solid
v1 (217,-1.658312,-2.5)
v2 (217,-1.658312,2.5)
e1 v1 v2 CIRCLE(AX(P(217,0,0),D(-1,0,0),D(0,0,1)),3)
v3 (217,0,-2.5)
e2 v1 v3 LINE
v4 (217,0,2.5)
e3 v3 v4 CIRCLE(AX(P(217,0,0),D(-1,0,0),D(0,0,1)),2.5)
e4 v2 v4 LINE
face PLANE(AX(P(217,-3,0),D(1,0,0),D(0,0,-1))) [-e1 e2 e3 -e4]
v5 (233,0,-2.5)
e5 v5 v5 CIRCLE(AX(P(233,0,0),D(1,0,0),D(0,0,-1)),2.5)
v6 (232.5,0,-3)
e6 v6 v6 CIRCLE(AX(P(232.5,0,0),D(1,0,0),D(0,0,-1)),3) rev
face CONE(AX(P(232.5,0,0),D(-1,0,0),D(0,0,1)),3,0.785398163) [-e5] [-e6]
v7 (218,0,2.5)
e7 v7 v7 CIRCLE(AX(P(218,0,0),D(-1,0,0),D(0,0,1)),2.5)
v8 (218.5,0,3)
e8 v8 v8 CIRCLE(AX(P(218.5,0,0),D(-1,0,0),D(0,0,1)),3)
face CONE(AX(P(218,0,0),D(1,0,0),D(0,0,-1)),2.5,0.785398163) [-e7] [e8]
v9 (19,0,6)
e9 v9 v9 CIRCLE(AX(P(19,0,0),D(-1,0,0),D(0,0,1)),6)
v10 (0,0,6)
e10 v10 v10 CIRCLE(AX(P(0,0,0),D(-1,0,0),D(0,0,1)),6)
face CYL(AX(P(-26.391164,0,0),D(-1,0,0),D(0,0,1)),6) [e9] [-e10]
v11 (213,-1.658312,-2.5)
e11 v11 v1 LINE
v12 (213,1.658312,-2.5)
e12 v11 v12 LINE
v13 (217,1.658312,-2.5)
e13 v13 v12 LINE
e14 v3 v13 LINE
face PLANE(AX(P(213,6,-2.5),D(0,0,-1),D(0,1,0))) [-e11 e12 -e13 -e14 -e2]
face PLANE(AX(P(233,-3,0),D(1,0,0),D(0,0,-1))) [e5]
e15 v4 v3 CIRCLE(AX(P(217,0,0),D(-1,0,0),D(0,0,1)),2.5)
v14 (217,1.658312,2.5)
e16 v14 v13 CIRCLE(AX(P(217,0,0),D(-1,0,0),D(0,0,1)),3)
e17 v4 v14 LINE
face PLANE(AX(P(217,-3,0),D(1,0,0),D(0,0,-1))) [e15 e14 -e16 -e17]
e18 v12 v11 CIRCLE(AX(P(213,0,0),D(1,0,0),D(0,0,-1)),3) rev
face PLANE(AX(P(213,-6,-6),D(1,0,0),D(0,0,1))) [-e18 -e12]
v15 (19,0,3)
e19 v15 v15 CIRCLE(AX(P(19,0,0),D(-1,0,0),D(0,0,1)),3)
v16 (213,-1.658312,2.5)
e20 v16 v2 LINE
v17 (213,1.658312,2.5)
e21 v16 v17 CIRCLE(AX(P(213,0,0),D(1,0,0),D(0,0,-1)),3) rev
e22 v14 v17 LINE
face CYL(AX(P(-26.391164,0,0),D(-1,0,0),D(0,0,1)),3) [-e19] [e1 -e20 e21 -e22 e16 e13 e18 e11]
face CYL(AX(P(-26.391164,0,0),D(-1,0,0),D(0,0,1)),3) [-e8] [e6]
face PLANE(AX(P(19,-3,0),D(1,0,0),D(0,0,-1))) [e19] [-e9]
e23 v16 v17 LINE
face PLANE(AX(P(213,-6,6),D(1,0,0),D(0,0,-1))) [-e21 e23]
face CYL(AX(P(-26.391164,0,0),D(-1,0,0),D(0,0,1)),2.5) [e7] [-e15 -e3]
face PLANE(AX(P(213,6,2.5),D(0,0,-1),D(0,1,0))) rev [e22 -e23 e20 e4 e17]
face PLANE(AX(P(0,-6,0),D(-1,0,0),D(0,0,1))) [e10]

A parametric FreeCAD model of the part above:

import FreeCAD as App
import Part
import Sketcher
from FreeCAD import Vector
Q = App.Units.Quantity


def edges_at(feature, points):
    """Names of the edges that pass closest to the given points."""
    edges = feature.Shape.Edges
    near = lambda p: min(range(len(edges)), key=lambda i: edges[i].distToShape(Part.Vertex(*p))[0])
    return sorted({f"Edge{near(p) + 1}" for p in points})


def add_polygon(sketch, points):
    """Adds a closed chain of lines whose ends are joined by coincident constraints."""
    first, n = sketch.GeometryCount, len(points)
    for a, b in zip(points, points[1:] + points[:1]):
        sketch.addGeometry(Part.LineSegment(App.Vector(*a, 0), App.Vector(*b, 0)), False)
    for i in range(n):
        sketch.addConstraint(Sketcher.Constraint("Coincident", first + i, 2, first + (i + 1) % n, 1))

doc = App.newDocument("Part")
body = doc.addObject("PartDesign::Body", "Body")

sketch1 = body.newObject("Sketcher::SketchObject", "Sketch")
sketch1.AttachmentSupport = (doc.getObject("XY_Plane"), [""])
sketch1.MapMode = "FlatFace"
add_polygon(sketch1, [(0, 0), (0, -6), (19, -6), (19, -3), (217, -3), (217, -2.5), (218, -2.5), (218.5, -3), (233, -3), (233, 0)])
sketch1.addConstraint([
    Sketcher.Constraint("Vertical", 0),
    Sketcher.Constraint("Horizontal", 1),
    Sketcher.Constraint("Vertical", 2),
    Sketcher.Constraint("Horizontal", 3),
    Sketcher.Constraint("Vertical", 4),
    Sketcher.Constraint("Horizontal", 5),
    Sketcher.Constraint("Horizontal", 7),
    Sketcher.Constraint("Vertical", 8),
    Sketcher.Constraint("Horizontal", 9),
    Sketcher.Constraint("Coincident", 9, 2, -1, 1),
    Sketcher.Constraint("Horizontal", 3, 2, 6, 2),
    Sketcher.Constraint("Equal", 2, 8),
    Sketcher.Constraint("DistanceX", 1, 1, 1, 2, Q("19 mm")),
    Sketcher.Constraint("DistanceX", 3, 1, 3, 2, Q("198 mm")),
    Sketcher.Constraint("DistanceX", 5, 1, 5, 2, Q("1 mm")),
    Sketcher.Constraint("DistanceX", 9, 2, 9, 1, Q("233 mm")),
    Sketcher.Constraint("DistanceY", 0, 2, 0, 1, Q("6 mm")),
    Sketcher.Constraint("Angle", 6, Q("-45 deg")),
    Sketcher.Constraint("DistanceX", 7, 1, 7, 2, Q("14.5 mm")),
])
revolution = body.newObject("PartDesign::Revolution", "Revolution")
revolution.Profile = sketch1
revolution.ReferenceAxis = (sketch1, ["H_Axis"])
revolution.Angle = 360
doc.recompute()

chamfer = body.newObject("PartDesign::Chamfer", "Chamfer")
chamfer.Base = (revolution, edges_at(revolution, [(233, 3, 0)]))
chamfer.Size = 0.5

sketch2 = body.newObject("Sketcher::SketchObject", "Sketch001")
sketch2.AttachmentSupport = (doc.getObject("YZ_Plane"), [""])
sketch2.MapMode = "FlatFace"
sketch2.AttachmentOffset = App.Placement(Vector(0, 0, 217), App.Rotation())
add_polygon(sketch2, [(6, 6), (-6, 6), (-6, 2.5), (6, 2.5)])
sketch2.addConstraint([
    Sketcher.Constraint("Horizontal", 0),
    Sketcher.Constraint("Vertical", 1),
    Sketcher.Constraint("Horizontal", 2),
    Sketcher.Constraint("Vertical", 3),
    Sketcher.Constraint("DistanceX", 0, 2, 0, 1, Q("12 mm")),
    Sketcher.Constraint("DistanceY", 1, 2, 1, 1, Q("3.5 mm")),
    Sketcher.Constraint("DistanceX", 0, 2, -1, 1, Q("6 mm")),
    Sketcher.Constraint("DistanceY", -1, 1, 0, 2, Q("6 mm")),
])
pocket1 = body.newObject("PartDesign::Pocket", "Pocket")
pocket1.Profile = sketch2
pocket1.Length = 4
doc.recompute()

mirrored = body.newObject("PartDesign::Mirrored", "Mirrored")
mirrored.Originals = [pocket1]
mirrored.MirrorPlane = (doc.getObject("XY_Plane"), [""])
body.Tip = mirrored

doc.recompute()
